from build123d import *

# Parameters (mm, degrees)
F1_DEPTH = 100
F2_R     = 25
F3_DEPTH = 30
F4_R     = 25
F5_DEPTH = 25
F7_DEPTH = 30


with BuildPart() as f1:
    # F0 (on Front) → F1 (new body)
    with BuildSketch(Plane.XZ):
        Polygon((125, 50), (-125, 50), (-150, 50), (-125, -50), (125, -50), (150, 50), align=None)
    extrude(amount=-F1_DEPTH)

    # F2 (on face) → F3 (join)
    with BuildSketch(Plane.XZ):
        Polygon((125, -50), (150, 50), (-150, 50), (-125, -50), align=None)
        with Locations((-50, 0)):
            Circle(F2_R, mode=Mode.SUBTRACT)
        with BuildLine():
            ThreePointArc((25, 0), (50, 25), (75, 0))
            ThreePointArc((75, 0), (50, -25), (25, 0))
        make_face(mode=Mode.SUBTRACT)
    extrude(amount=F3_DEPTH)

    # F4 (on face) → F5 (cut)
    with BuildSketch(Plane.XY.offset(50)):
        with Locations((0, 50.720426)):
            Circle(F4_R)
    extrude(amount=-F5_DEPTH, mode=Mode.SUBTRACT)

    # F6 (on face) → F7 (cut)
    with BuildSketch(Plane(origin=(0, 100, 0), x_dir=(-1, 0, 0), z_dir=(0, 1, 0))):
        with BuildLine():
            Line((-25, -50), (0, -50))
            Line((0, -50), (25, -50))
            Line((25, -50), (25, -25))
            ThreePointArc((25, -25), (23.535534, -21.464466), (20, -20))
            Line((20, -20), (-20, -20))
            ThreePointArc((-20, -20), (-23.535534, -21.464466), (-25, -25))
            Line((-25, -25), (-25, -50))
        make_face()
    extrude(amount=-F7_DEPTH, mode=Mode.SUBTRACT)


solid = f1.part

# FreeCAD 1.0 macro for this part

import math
import FreeCAD as App
import Part
import Sketcher
Q = App.Units.Quantity

doc = App.newDocument("Part")
body = doc.addObject("PartDesign::Body", "Body")

# Sketch on XZ plane
sketch1 = doc.addObject("Sketcher::SketchObject", "Sketch")
body.addObject(sketch1)
sketch1.AttachmentSupport = (doc.XZ_Plane, [""])
sketch1.MapMode = "FlatFace"
sketch1.addGeometry(Part.LineSegment(App.Vector(-150, 50, 0), App.Vector(-125, -50, 0)), False)
sketch1.addGeometry(Part.LineSegment(App.Vector(-125, -50, 0), App.Vector(125, -50, 0)), False)
sketch1.addGeometry(Part.LineSegment(App.Vector(125, -50, 0), App.Vector(150, 50, 0)), False)
sketch1.addGeometry(Part.LineSegment(App.Vector(150, 50, 0), App.Vector(-150, 50, 0)), False)
sketch1.addConstraint(Sketcher.Constraint("Coincident", 0, 2, 1, 1))
sketch1.addConstraint(Sketcher.Constraint("Coincident", 1, 2, 2, 1))
sketch1.addConstraint(Sketcher.Constraint("Coincident", 2, 2, 3, 1))
sketch1.addConstraint(Sketcher.Constraint("Coincident", 3, 2, 0, 1))
sketch1.addConstraint(Sketcher.Constraint("Horizontal", 1))
sketch1.addConstraint(Sketcher.Constraint("Horizontal", 3))
sketch1.addConstraint(Sketcher.Constraint("Equal", 0, 2))
sketch1.addConstraint(Sketcher.Constraint("DistanceX", 1, 1, 1, 2, Q("250 mm")))
sketch1.addConstraint(Sketcher.Constraint("DistanceX", 3, 2, 3, 1, Q("300 mm")))
sketch1.addConstraint(Sketcher.Constraint("DistanceX", 0, 2, -1, 1, Q("125 mm")))
sketch1.addConstraint(Sketcher.Constraint("DistanceY", 0, 2, -1, 1, Q("50 mm")))
sketch1.addConstraint(Sketcher.Constraint("DistanceY", -1, 1, 2, 2, Q("50 mm")))
pad1 = doc.addObject("PartDesign::Pad", "Pad")
body.addObject(pad1)
pad1.Profile = sketch1
pad1.Length = 100
pad1.Reversed = True

# Sketch on XZ plane
sketch2 = doc.addObject("Sketcher::SketchObject", "Sketch001")
body.addObject(sketch2)
sketch2.AttachmentSupport = (doc.XZ_Plane, [""])
sketch2.MapMode = "FlatFace"
sketch2.addGeometry(Part.LineSegment(App.Vector(125, -50, 0), App.Vector(150, 50, 0)), False)
sketch2.addGeometry(Part.LineSegment(App.Vector(150, 50, 0), App.Vector(-150, 50, 0)), False)
sketch2.addGeometry(Part.LineSegment(App.Vector(-150, 50, 0), App.Vector(-125, -50, 0)), False)
sketch2.addGeometry(Part.LineSegment(App.Vector(-125, -50, 0), App.Vector(125, -50, 0)), False)
sketch2.addGeometry(Part.Circle(App.Vector(-50, 0, 0), App.Vector(0, 0, 1), 25), False)
sketch2.addGeometry(Part.Circle(App.Vector(50, 0, 0), App.Vector(0, 0, 1), 25), False)
sketch2.addConstraint(Sketcher.Constraint("Coincident", 0, 2, 1, 1))
sketch2.addConstraint(Sketcher.Constraint("Coincident", 1, 2, 2, 1))
sketch2.addConstraint(Sketcher.Constraint("Coincident", 2, 2, 3, 1))
sketch2.addConstraint(Sketcher.Constraint("Coincident", 3, 2, 0, 1))
sketch2.addConstraint(Sketcher.Constraint("Horizontal", 1))
sketch2.addConstraint(Sketcher.Constraint("Horizontal", 3))
sketch2.addConstraint(Sketcher.Constraint("Equal", 4, 5))
sketch2.addConstraint(Sketcher.Constraint("Symmetric", 4, 3, 5, 3, -1, 1))
sketch2.addConstraint(Sketcher.Constraint("PointOnObject", 4, 3, -1))
sketch2.addConstraint(Sketcher.Constraint("Equal", 0, 2))
sketch2.addConstraint(Sketcher.Constraint("Diameter", 4, Q("50 mm")))
sketch2.addConstraint(Sketcher.Constraint("DistanceX", 1, 2, 1, 1, Q("300 mm")))
sketch2.addConstraint(Sketcher.Constraint("DistanceX", 3, 1, 3, 2, Q("250 mm")))
sketch2.addConstraint(Sketcher.Constraint("DistanceX", 4, 3, -1, 1, Q("50 mm")))
sketch2.addConstraint(Sketcher.Constraint("DistanceX", -1, 1, 0, 2, Q("150 mm")))
sketch2.addConstraint(Sketcher.Constraint("DistanceY", -1, 1, 0, 2, Q("50 mm")))
sketch2.addConstraint(Sketcher.Constraint("DistanceY", 2, 2, -1, 1, Q("50 mm")))
pad2 = doc.addObject("PartDesign::Pad", "Pad001")
body.addObject(pad2)
pad2.Profile = sketch2
pad2.Length = 30

# Sketch on XY plane
sketch3 = doc.addObject("Sketcher::SketchObject", "Sketch002")
body.addObject(sketch3)
sketch3.AttachmentSupport = (doc.XY_Plane, [""])
sketch3.MapMode = "FlatFace"
sketch3.AttachmentOffset = App.Placement(App.Vector(0, 0, 50), App.Rotation())
sketch3.addGeometry(Part.Circle(App.Vector(0, 50.720426, 0), App.Vector(0, 0, 1), 25), False)
sketch3.addConstraint(Sketcher.Constraint("PointOnObject", 0, 3, -2))
sketch3.addConstraint(Sketcher.Constraint("Diameter", 0, Q("50 mm")))
sketch3.addConstraint(Sketcher.Constraint("DistanceY", -1, 1, 0, 3, Q("50.720426 mm")))
pocket1 = doc.addObject("PartDesign::Pocket", "Pocket")
body.addObject(pocket1)
pocket1.Profile = sketch3
pocket1.Length = 25

# Sketch on XZ plane
sketch4 = doc.addObject("Sketcher::SketchObject", "Sketch003")
body.addObject(sketch4)
sketch4.AttachmentSupport = (doc.XZ_Plane, [""])
sketch4.MapMode = "FlatFace"
sketch4.AttachmentOffset = App.Placement(App.Vector(0, 0, -100), App.Rotation())
sketch4.addGeometry(Part.LineSegment(App.Vector(25, -50, 0), App.Vector(-25, -50, 0)), False)
sketch4.addGeometry(Part.LineSegment(App.Vector(-25, -50, 0), App.Vector(-25, -25, 0)), False)
sketch4.addGeometry(Part.ArcOfCircle(Part.Circle(App.Vector(-20, -25, 0), App.Vector(0, 0, 1), 5), math.radians(89.999996), math.radians(180.000004)), False)
sketch4.addGeometry(Part.LineSegment(App.Vector(-20, -20, 0), App.Vector(20, -20, 0)), False)
sketch4.addGeometry(Part.ArcOfCircle(Part.Circle(App.Vector(20, -25, 0), App.Vector(0, 0, 1), 5), math.radians(-0.000004), math.radians(90.000004)), False)
sketch4.addGeometry(Part.LineSegment(App.Vector(25, -25, 0), App.Vector(25, -50, 0)), False)
sketch4.addConstraint(Sketcher.Constraint("Coincident", 0, 2, 1, 1))
sketch4.addConstraint(Sketcher.Constraint("Tangent", 1, 2, 2, 2))
sketch4.addConstraint(Sketcher.Constraint("Tangent", 2, 1, 3, 1))
sketch4.addConstraint(Sketcher.Constraint("Tangent", 3, 2, 4, 2))
sketch4.addConstraint(Sketcher.Constraint("Tangent", 4, 1, 5, 1))
sketch4.addConstraint(Sketcher.Constraint("Coincident", 5, 2, 0, 1))
sketch4.addConstraint(Sketcher.Constraint("Horizontal", 0))
sketch4.addConstraint(Sketcher.Constraint("Vertical", 1))
sketch4.addConstraint(Sketcher.Constraint("Horizontal", 3))
sketch4.addConstraint(Sketcher.Constraint("Vertical", 5))
sketch4.addConstraint(Sketcher.Constraint("Equal", 2, 4))
sketch4.addConstraint(Sketcher.Constraint("Radius", 2, Q("5 mm")))
sketch4.addConstraint(Sketcher.Constraint("DistanceX", 0, 2, 0, 1, Q("50 mm")))
sketch4.addConstraint(Sketcher.Constraint("DistanceY", 1, 1, 1, 2, Q("25 mm")))
sketch4.addConstraint(Sketcher.Constraint("DistanceX", 2, 3, -1, 1, Q("20 mm")))
sketch4.addConstraint(Sketcher.Constraint("DistanceY", 2, 3, -1, 1, Q("25 mm")))
pocket2 = doc.addObject("PartDesign::Pocket", "Pocket001")
body.addObject(pocket2)
pocket2.Profile = sketch4
pocket2.Length = 30
pocket2.Reversed = True

doc.recompute()
